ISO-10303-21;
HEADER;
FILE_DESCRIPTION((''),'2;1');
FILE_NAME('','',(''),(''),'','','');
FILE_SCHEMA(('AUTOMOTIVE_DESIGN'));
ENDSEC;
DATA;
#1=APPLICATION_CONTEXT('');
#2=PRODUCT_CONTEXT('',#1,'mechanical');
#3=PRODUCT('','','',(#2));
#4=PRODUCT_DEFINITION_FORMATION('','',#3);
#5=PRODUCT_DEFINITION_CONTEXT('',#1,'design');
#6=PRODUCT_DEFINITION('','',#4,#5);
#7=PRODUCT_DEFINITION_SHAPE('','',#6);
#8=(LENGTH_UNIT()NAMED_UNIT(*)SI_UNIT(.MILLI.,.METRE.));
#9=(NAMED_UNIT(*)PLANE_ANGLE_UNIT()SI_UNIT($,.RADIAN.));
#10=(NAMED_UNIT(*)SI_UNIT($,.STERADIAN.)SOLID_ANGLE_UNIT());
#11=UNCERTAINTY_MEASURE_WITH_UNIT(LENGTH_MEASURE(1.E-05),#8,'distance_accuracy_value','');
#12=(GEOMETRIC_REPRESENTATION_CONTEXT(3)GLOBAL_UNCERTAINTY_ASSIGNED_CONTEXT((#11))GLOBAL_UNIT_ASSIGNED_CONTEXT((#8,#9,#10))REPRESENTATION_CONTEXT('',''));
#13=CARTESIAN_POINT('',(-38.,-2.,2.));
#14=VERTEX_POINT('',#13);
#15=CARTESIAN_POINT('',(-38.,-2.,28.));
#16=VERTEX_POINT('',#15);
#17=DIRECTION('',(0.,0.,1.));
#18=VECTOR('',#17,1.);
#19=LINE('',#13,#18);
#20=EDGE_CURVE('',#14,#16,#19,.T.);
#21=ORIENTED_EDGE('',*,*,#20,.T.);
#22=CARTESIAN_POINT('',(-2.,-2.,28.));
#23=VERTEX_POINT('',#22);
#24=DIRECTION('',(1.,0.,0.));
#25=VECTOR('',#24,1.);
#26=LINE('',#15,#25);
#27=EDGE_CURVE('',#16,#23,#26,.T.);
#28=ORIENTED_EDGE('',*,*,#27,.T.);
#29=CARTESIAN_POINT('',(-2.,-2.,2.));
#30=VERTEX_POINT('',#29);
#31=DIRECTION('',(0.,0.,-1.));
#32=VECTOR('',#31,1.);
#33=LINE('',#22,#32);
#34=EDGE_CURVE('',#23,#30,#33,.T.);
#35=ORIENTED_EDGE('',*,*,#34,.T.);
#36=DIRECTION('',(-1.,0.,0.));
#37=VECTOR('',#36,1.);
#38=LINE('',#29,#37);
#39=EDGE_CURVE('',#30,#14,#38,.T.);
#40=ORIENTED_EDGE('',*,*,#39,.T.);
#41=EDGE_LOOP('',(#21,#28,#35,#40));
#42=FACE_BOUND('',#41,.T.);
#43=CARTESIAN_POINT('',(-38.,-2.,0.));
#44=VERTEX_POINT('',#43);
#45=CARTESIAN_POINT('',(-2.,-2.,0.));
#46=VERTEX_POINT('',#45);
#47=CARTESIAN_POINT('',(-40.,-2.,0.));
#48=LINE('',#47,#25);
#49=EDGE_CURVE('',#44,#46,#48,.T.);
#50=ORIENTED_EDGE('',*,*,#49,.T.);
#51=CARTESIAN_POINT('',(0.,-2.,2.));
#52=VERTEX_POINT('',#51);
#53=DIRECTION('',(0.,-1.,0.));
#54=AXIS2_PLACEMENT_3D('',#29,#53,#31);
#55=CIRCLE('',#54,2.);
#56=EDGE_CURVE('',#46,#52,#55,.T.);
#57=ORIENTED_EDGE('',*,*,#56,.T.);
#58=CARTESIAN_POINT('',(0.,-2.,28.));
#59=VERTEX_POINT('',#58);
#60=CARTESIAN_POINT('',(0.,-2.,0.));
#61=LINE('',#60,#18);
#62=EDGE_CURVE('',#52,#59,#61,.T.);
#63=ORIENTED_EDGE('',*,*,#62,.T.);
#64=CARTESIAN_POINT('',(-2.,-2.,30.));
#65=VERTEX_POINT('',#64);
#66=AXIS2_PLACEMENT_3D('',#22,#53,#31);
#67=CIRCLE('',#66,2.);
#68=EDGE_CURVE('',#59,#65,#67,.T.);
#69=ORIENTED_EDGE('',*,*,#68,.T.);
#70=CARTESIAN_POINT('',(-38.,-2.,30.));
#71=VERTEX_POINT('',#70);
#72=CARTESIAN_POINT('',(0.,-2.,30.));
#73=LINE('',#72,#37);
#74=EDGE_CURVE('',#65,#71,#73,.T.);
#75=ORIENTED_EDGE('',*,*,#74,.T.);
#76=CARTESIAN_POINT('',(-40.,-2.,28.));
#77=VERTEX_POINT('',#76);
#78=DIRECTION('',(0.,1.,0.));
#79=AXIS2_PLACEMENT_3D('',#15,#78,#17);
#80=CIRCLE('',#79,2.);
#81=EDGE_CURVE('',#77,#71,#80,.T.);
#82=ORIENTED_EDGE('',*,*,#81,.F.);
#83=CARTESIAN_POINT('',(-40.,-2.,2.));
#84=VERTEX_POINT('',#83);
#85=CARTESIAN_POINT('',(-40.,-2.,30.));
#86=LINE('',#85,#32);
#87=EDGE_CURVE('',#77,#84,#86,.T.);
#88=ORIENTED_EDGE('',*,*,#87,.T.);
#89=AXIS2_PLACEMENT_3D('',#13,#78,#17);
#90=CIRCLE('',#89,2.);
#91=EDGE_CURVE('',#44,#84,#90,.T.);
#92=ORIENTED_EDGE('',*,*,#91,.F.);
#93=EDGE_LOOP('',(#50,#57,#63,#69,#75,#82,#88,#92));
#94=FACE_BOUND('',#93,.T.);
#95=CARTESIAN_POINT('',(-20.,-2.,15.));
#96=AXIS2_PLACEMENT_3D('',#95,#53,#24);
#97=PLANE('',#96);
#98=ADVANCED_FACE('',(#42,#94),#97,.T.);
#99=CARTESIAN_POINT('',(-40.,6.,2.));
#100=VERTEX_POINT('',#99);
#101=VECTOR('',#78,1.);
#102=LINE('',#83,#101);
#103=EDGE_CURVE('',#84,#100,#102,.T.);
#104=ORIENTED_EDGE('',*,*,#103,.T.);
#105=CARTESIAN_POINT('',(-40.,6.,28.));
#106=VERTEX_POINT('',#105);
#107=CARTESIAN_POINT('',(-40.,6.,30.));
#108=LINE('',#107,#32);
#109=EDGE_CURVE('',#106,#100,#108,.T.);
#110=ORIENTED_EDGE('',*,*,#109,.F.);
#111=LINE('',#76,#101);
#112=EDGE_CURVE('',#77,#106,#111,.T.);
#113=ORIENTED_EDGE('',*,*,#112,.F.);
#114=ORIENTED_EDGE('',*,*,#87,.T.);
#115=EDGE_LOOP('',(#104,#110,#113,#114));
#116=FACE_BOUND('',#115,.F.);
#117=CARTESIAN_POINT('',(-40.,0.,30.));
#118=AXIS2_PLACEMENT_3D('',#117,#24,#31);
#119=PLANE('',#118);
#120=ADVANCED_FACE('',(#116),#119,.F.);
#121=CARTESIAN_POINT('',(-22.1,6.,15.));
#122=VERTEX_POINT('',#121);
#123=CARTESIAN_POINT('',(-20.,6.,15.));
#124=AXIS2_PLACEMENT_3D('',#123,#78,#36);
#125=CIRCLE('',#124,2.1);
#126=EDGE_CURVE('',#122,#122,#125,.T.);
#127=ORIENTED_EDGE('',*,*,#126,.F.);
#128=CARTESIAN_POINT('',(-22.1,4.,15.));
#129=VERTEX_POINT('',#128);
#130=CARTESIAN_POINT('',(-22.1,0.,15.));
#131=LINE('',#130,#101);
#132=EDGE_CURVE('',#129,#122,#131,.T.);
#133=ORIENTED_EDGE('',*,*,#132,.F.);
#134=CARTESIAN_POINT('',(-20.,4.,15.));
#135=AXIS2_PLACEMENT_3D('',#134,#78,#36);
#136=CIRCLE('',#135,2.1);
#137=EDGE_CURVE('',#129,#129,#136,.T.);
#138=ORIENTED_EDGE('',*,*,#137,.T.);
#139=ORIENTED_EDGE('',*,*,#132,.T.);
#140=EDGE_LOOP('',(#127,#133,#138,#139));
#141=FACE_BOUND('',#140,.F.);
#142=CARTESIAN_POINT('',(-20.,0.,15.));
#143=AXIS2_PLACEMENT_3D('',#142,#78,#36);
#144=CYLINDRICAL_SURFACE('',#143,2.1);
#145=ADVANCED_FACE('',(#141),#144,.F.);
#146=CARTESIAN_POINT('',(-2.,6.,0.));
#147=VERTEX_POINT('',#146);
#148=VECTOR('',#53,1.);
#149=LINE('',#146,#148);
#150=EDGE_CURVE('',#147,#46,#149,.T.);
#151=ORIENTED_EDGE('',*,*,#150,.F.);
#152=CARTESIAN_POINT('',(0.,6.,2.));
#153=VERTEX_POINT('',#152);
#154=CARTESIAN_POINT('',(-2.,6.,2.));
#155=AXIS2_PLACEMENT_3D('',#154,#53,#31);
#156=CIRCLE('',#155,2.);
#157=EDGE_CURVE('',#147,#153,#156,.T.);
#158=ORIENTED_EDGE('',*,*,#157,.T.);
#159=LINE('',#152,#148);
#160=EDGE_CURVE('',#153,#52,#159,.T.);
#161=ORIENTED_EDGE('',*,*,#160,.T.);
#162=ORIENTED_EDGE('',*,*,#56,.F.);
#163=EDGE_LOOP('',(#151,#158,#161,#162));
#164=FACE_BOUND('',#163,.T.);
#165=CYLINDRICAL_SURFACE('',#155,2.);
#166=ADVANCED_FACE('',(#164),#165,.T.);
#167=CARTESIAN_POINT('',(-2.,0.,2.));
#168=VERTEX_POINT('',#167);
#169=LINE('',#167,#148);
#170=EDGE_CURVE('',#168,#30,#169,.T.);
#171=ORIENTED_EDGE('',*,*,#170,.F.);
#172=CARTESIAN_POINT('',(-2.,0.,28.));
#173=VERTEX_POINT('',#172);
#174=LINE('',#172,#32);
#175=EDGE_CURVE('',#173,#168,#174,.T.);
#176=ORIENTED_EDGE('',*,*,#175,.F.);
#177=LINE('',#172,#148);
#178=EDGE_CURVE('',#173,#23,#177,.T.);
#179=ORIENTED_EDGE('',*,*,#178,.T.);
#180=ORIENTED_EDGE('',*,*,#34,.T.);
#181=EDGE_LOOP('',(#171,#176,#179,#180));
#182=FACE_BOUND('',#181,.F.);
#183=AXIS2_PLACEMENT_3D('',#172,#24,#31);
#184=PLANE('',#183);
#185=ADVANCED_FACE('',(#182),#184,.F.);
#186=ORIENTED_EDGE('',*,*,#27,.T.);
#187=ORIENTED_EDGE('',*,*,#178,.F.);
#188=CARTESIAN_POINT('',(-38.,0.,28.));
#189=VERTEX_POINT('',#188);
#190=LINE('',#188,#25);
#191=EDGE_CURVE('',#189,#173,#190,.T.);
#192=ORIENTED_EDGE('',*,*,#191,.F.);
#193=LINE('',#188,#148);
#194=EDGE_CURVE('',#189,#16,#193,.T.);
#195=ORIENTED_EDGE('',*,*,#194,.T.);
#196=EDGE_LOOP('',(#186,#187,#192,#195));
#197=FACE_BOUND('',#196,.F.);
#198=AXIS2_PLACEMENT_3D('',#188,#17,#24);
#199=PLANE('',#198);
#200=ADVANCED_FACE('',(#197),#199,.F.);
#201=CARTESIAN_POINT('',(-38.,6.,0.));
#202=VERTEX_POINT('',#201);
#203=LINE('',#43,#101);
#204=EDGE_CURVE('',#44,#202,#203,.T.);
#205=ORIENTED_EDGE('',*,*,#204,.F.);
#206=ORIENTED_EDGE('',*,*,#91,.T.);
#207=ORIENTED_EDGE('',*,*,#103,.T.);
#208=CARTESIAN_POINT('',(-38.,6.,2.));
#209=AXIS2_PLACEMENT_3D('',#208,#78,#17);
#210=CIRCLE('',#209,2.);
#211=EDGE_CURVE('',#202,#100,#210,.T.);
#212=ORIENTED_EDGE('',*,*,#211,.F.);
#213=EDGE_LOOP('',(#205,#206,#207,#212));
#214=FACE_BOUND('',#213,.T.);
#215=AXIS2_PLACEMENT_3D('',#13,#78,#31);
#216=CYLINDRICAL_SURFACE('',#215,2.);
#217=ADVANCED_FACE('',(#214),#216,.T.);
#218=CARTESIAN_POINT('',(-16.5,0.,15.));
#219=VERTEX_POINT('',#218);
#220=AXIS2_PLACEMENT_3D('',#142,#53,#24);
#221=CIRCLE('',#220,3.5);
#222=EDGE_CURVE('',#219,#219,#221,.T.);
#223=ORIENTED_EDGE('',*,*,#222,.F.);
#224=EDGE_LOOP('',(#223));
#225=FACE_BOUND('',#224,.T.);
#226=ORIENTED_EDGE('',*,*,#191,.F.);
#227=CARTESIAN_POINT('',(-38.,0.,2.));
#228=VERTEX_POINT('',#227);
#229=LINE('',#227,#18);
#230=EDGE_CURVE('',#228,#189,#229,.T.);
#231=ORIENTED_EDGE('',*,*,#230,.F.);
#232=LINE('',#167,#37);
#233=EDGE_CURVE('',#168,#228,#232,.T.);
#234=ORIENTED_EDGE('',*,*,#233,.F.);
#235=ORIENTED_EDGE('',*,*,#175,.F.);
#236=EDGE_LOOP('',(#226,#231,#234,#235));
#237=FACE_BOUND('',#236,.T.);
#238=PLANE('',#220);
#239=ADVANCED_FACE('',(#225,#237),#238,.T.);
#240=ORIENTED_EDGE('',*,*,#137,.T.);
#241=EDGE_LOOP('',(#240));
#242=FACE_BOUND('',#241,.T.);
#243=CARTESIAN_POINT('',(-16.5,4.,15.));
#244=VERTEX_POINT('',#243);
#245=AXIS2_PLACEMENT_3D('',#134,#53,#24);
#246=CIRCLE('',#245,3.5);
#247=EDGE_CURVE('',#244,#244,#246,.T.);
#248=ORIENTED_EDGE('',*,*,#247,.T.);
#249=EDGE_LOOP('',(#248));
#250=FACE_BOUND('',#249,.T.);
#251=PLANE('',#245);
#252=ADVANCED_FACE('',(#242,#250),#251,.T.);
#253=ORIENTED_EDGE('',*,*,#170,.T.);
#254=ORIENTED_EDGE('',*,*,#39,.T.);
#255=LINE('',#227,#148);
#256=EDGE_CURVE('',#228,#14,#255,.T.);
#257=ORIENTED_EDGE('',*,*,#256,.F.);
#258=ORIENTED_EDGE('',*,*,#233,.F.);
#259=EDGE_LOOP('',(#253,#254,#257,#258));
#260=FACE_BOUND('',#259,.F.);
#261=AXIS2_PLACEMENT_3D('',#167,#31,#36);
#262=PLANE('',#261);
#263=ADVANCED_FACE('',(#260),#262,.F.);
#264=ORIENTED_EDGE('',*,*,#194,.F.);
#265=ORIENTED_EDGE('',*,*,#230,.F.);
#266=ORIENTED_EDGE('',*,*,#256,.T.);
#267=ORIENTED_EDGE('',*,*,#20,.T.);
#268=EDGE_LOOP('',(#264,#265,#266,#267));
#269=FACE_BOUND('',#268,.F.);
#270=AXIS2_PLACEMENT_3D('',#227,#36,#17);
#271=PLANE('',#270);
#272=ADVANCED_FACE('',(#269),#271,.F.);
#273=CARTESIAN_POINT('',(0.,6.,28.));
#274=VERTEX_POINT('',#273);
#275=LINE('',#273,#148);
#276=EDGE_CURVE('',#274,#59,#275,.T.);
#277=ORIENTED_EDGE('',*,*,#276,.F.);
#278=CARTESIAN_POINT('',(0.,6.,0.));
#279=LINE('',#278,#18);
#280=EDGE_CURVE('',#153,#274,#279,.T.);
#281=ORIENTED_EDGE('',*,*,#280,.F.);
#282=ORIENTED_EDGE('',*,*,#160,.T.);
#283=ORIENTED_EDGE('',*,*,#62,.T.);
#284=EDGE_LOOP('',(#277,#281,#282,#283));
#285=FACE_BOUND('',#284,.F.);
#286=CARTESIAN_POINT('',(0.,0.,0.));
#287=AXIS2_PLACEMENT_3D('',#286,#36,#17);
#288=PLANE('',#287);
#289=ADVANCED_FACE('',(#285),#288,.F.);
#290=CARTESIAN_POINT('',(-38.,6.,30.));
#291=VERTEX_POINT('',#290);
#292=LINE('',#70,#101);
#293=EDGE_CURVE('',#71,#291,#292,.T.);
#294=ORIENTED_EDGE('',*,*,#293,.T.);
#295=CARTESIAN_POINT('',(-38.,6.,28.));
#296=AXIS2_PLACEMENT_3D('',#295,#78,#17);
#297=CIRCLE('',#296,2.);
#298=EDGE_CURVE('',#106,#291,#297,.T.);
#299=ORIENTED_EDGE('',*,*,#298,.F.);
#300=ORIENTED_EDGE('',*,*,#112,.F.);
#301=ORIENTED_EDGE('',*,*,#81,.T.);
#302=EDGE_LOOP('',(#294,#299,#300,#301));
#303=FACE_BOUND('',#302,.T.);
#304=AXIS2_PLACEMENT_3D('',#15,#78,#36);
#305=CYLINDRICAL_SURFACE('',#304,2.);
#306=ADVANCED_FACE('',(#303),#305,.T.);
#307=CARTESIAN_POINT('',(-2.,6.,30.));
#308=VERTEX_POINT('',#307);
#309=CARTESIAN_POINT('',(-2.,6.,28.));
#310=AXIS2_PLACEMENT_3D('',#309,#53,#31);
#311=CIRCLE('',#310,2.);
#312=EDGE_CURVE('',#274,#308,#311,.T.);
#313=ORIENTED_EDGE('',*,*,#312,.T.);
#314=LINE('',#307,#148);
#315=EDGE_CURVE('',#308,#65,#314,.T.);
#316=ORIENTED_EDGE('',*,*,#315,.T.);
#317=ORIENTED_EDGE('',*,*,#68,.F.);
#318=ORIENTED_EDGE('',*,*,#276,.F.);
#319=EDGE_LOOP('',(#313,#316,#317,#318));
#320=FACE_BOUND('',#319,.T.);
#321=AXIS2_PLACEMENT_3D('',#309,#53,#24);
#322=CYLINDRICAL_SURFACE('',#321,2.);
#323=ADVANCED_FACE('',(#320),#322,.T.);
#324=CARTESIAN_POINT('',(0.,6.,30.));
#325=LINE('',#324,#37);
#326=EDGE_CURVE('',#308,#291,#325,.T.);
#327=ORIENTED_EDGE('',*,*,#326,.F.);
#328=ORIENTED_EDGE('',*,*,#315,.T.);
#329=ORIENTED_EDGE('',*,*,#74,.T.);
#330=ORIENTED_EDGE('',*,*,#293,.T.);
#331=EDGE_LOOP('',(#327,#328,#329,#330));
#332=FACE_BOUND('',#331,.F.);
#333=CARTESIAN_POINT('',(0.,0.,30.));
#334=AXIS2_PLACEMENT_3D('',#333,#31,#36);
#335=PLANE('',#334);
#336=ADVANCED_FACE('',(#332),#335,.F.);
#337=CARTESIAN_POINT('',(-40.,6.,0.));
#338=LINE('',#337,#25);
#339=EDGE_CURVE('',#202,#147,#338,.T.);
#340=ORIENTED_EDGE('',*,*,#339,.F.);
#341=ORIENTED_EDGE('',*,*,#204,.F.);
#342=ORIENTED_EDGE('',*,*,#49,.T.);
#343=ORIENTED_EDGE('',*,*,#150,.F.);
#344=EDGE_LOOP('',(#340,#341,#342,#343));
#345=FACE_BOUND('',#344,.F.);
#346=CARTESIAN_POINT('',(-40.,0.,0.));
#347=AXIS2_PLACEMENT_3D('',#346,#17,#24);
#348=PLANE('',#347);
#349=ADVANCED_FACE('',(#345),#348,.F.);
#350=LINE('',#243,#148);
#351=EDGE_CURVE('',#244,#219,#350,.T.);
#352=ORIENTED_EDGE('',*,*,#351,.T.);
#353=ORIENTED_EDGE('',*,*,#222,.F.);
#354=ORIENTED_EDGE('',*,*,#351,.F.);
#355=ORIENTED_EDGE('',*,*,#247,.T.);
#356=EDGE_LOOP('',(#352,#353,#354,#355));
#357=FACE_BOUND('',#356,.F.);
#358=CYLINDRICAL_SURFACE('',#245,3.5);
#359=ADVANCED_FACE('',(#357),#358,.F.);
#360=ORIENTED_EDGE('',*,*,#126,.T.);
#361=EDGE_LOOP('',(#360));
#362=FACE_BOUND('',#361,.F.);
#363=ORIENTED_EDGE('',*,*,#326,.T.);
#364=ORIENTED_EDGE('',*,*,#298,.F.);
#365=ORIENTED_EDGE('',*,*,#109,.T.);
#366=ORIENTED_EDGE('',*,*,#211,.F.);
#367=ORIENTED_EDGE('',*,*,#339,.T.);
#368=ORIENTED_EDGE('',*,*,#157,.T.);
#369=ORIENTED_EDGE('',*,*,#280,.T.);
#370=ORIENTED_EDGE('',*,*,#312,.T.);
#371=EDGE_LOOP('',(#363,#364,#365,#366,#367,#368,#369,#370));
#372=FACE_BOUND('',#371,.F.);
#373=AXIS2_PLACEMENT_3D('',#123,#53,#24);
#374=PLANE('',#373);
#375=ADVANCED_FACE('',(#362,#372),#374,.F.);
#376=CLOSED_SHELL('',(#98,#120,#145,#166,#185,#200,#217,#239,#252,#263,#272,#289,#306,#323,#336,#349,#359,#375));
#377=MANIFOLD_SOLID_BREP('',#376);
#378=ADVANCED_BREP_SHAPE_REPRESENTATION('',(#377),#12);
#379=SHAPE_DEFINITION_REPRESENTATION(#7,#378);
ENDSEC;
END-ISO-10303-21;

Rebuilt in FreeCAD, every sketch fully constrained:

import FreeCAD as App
import Part
import Sketcher
from FreeCAD import Vector
Q = App.Units.Quantity


def edges_at(feature, points):
    """Names of the edges that pass closest to the given points."""
    edges = feature.Shape.Edges
    near = lambda p: min(range(len(edges)), key=lambda i: edges[i].distToShape(Part.Vertex(*p))[0])
    return sorted({f"Edge{near(p) + 1}" for p in points})


def add_polygon(sketch, points):
    """Adds a closed chain of lines whose ends are joined by coincident constraints."""
    first, n = sketch.GeometryCount, len(points)
    for a, b in zip(points, points[1:] + points[:1]):
        sketch.addGeometry(Part.LineSegment(App.Vector(*a, 0), App.Vector(*b, 0)), False)
    for i in range(n):
        sketch.addConstraint(Sketcher.Constraint("Coincident", first + i, 2, first + (i + 1) % n, 1))

doc = App.newDocument("Part")
body = doc.addObject("PartDesign::Body", "Body")

# Sketch on XZ plane
sketch1 = body.newObject("Sketcher::SketchObject", "Sketch")
sketch1.AttachmentSupport = (doc.getObject("XZ_Plane"), [""])
sketch1.MapMode = "FlatFace"
add_polygon(sketch1, [(-40, 0), (0, 0), (0, 30), (-40, 30)])  # lines 0-3
sketch1.addConstraint([
    Sketcher.Constraint("Horizontal", 0),
    Sketcher.Constraint("Vertical", 1),
    Sketcher.Constraint("Horizontal", 2),
    Sketcher.Constraint("Vertical", 3),
    Sketcher.Constraint("Coincident", 0, 2, -1, 1),
    Sketcher.Constraint("DistanceX", 0, 1, 0, 2, Q("40 mm")),
    Sketcher.Constraint("DistanceY", 1, 1, 1, 2, Q("30 mm")),
])
pad1 = body.newObject("PartDesign::Pad", "Pad")
pad1.Profile = sketch1
pad1.Length = 6
pad1.Reversed = True

# Sketch on XZ plane
sketch2 = body.newObject("Sketcher::SketchObject", "Sketch001")
sketch2.AttachmentSupport = (doc.getObject("XZ_Plane"), [""])
sketch2.MapMode = "FlatFace"
add_polygon(sketch2, [(-40, 0), (0, 0), (0, 30), (-40, 30)])  # lines 0-3
add_polygon(sketch2, [(-2, 2), (-38, 2), (-38, 28), (-2, 28)])  # lines 4-7
sketch2.addConstraint([
    Sketcher.Constraint("Horizontal", 0),
    Sketcher.Constraint("Vertical", 1),
    Sketcher.Constraint("Horizontal", 2),
    Sketcher.Constraint("Vertical", 3),
    Sketcher.Constraint("Horizontal", 4),
    Sketcher.Constraint("Vertical", 5),
    Sketcher.Constraint("Horizontal", 6),
    Sketcher.Constraint("Vertical", 7),
    Sketcher.Constraint("Coincident", 0, 2, -1, 1),
    Sketcher.Constraint("DistanceX", 0, 1, 0, 2, Q("40 mm")),
    Sketcher.Constraint("DistanceX", 4, 2, 4, 1, Q("36 mm")),
    Sketcher.Constraint("DistanceY", 1, 1, 1, 2, Q("30 mm")),
    Sketcher.Constraint("DistanceY", 5, 1, 5, 2, Q("26 mm")),
    Sketcher.Constraint("DistanceX", 4, 2, -1, 1, Q("38 mm")),
    Sketcher.Constraint("DistanceY", -1, 1, 4, 2, Q("2 mm")),
])
pad2 = body.newObject("PartDesign::Pad", "Pad001")
pad2.Profile = sketch2
pad2.Length = 2

# Sketch on XZ plane
sketch3 = body.newObject("Sketcher::SketchObject", "Sketch002")
sketch3.AttachmentSupport = (doc.getObject("XZ_Plane"), [""])
sketch3.MapMode = "FlatFace"
sketch3.addGeometry(Part.Circle(Vector(-20, 15, 0), Vector(0, 0, 1), 2.1), False)
sketch3.addConstraint([
    Sketcher.Constraint("Diameter", 0, Q("4.2 mm")),
    Sketcher.Constraint("DistanceX", 0, 3, -1, 1, Q("20 mm")),
    Sketcher.Constraint("DistanceY", -1, 1, 0, 3, Q("15 mm")),
])
doc.recompute()
hole = body.newObject("PartDesign::Hole", "Hole")
hole.Profile = sketch3
hole.ThreadType = "None"
hole.Diameter = 4.2
hole.DepthType = "Dimension"
hole.Depth = 15
hole.DrillPoint = "Flat"
hole.HoleCutType = "Counterbore"
hole.HoleCutDiameter = 7
hole.HoleCutDepth = 4
doc.recompute()

fillet = body.newObject("PartDesign::Fillet", "Fillet")
fillet.Base = (hole, edges_at(hole, [
    (-40, 2, 30),
    (0, 2, 30),
    (0, 2, 0),
    (-40, 2, 0),
]))
fillet.Radius = 2

doc.recompute()
